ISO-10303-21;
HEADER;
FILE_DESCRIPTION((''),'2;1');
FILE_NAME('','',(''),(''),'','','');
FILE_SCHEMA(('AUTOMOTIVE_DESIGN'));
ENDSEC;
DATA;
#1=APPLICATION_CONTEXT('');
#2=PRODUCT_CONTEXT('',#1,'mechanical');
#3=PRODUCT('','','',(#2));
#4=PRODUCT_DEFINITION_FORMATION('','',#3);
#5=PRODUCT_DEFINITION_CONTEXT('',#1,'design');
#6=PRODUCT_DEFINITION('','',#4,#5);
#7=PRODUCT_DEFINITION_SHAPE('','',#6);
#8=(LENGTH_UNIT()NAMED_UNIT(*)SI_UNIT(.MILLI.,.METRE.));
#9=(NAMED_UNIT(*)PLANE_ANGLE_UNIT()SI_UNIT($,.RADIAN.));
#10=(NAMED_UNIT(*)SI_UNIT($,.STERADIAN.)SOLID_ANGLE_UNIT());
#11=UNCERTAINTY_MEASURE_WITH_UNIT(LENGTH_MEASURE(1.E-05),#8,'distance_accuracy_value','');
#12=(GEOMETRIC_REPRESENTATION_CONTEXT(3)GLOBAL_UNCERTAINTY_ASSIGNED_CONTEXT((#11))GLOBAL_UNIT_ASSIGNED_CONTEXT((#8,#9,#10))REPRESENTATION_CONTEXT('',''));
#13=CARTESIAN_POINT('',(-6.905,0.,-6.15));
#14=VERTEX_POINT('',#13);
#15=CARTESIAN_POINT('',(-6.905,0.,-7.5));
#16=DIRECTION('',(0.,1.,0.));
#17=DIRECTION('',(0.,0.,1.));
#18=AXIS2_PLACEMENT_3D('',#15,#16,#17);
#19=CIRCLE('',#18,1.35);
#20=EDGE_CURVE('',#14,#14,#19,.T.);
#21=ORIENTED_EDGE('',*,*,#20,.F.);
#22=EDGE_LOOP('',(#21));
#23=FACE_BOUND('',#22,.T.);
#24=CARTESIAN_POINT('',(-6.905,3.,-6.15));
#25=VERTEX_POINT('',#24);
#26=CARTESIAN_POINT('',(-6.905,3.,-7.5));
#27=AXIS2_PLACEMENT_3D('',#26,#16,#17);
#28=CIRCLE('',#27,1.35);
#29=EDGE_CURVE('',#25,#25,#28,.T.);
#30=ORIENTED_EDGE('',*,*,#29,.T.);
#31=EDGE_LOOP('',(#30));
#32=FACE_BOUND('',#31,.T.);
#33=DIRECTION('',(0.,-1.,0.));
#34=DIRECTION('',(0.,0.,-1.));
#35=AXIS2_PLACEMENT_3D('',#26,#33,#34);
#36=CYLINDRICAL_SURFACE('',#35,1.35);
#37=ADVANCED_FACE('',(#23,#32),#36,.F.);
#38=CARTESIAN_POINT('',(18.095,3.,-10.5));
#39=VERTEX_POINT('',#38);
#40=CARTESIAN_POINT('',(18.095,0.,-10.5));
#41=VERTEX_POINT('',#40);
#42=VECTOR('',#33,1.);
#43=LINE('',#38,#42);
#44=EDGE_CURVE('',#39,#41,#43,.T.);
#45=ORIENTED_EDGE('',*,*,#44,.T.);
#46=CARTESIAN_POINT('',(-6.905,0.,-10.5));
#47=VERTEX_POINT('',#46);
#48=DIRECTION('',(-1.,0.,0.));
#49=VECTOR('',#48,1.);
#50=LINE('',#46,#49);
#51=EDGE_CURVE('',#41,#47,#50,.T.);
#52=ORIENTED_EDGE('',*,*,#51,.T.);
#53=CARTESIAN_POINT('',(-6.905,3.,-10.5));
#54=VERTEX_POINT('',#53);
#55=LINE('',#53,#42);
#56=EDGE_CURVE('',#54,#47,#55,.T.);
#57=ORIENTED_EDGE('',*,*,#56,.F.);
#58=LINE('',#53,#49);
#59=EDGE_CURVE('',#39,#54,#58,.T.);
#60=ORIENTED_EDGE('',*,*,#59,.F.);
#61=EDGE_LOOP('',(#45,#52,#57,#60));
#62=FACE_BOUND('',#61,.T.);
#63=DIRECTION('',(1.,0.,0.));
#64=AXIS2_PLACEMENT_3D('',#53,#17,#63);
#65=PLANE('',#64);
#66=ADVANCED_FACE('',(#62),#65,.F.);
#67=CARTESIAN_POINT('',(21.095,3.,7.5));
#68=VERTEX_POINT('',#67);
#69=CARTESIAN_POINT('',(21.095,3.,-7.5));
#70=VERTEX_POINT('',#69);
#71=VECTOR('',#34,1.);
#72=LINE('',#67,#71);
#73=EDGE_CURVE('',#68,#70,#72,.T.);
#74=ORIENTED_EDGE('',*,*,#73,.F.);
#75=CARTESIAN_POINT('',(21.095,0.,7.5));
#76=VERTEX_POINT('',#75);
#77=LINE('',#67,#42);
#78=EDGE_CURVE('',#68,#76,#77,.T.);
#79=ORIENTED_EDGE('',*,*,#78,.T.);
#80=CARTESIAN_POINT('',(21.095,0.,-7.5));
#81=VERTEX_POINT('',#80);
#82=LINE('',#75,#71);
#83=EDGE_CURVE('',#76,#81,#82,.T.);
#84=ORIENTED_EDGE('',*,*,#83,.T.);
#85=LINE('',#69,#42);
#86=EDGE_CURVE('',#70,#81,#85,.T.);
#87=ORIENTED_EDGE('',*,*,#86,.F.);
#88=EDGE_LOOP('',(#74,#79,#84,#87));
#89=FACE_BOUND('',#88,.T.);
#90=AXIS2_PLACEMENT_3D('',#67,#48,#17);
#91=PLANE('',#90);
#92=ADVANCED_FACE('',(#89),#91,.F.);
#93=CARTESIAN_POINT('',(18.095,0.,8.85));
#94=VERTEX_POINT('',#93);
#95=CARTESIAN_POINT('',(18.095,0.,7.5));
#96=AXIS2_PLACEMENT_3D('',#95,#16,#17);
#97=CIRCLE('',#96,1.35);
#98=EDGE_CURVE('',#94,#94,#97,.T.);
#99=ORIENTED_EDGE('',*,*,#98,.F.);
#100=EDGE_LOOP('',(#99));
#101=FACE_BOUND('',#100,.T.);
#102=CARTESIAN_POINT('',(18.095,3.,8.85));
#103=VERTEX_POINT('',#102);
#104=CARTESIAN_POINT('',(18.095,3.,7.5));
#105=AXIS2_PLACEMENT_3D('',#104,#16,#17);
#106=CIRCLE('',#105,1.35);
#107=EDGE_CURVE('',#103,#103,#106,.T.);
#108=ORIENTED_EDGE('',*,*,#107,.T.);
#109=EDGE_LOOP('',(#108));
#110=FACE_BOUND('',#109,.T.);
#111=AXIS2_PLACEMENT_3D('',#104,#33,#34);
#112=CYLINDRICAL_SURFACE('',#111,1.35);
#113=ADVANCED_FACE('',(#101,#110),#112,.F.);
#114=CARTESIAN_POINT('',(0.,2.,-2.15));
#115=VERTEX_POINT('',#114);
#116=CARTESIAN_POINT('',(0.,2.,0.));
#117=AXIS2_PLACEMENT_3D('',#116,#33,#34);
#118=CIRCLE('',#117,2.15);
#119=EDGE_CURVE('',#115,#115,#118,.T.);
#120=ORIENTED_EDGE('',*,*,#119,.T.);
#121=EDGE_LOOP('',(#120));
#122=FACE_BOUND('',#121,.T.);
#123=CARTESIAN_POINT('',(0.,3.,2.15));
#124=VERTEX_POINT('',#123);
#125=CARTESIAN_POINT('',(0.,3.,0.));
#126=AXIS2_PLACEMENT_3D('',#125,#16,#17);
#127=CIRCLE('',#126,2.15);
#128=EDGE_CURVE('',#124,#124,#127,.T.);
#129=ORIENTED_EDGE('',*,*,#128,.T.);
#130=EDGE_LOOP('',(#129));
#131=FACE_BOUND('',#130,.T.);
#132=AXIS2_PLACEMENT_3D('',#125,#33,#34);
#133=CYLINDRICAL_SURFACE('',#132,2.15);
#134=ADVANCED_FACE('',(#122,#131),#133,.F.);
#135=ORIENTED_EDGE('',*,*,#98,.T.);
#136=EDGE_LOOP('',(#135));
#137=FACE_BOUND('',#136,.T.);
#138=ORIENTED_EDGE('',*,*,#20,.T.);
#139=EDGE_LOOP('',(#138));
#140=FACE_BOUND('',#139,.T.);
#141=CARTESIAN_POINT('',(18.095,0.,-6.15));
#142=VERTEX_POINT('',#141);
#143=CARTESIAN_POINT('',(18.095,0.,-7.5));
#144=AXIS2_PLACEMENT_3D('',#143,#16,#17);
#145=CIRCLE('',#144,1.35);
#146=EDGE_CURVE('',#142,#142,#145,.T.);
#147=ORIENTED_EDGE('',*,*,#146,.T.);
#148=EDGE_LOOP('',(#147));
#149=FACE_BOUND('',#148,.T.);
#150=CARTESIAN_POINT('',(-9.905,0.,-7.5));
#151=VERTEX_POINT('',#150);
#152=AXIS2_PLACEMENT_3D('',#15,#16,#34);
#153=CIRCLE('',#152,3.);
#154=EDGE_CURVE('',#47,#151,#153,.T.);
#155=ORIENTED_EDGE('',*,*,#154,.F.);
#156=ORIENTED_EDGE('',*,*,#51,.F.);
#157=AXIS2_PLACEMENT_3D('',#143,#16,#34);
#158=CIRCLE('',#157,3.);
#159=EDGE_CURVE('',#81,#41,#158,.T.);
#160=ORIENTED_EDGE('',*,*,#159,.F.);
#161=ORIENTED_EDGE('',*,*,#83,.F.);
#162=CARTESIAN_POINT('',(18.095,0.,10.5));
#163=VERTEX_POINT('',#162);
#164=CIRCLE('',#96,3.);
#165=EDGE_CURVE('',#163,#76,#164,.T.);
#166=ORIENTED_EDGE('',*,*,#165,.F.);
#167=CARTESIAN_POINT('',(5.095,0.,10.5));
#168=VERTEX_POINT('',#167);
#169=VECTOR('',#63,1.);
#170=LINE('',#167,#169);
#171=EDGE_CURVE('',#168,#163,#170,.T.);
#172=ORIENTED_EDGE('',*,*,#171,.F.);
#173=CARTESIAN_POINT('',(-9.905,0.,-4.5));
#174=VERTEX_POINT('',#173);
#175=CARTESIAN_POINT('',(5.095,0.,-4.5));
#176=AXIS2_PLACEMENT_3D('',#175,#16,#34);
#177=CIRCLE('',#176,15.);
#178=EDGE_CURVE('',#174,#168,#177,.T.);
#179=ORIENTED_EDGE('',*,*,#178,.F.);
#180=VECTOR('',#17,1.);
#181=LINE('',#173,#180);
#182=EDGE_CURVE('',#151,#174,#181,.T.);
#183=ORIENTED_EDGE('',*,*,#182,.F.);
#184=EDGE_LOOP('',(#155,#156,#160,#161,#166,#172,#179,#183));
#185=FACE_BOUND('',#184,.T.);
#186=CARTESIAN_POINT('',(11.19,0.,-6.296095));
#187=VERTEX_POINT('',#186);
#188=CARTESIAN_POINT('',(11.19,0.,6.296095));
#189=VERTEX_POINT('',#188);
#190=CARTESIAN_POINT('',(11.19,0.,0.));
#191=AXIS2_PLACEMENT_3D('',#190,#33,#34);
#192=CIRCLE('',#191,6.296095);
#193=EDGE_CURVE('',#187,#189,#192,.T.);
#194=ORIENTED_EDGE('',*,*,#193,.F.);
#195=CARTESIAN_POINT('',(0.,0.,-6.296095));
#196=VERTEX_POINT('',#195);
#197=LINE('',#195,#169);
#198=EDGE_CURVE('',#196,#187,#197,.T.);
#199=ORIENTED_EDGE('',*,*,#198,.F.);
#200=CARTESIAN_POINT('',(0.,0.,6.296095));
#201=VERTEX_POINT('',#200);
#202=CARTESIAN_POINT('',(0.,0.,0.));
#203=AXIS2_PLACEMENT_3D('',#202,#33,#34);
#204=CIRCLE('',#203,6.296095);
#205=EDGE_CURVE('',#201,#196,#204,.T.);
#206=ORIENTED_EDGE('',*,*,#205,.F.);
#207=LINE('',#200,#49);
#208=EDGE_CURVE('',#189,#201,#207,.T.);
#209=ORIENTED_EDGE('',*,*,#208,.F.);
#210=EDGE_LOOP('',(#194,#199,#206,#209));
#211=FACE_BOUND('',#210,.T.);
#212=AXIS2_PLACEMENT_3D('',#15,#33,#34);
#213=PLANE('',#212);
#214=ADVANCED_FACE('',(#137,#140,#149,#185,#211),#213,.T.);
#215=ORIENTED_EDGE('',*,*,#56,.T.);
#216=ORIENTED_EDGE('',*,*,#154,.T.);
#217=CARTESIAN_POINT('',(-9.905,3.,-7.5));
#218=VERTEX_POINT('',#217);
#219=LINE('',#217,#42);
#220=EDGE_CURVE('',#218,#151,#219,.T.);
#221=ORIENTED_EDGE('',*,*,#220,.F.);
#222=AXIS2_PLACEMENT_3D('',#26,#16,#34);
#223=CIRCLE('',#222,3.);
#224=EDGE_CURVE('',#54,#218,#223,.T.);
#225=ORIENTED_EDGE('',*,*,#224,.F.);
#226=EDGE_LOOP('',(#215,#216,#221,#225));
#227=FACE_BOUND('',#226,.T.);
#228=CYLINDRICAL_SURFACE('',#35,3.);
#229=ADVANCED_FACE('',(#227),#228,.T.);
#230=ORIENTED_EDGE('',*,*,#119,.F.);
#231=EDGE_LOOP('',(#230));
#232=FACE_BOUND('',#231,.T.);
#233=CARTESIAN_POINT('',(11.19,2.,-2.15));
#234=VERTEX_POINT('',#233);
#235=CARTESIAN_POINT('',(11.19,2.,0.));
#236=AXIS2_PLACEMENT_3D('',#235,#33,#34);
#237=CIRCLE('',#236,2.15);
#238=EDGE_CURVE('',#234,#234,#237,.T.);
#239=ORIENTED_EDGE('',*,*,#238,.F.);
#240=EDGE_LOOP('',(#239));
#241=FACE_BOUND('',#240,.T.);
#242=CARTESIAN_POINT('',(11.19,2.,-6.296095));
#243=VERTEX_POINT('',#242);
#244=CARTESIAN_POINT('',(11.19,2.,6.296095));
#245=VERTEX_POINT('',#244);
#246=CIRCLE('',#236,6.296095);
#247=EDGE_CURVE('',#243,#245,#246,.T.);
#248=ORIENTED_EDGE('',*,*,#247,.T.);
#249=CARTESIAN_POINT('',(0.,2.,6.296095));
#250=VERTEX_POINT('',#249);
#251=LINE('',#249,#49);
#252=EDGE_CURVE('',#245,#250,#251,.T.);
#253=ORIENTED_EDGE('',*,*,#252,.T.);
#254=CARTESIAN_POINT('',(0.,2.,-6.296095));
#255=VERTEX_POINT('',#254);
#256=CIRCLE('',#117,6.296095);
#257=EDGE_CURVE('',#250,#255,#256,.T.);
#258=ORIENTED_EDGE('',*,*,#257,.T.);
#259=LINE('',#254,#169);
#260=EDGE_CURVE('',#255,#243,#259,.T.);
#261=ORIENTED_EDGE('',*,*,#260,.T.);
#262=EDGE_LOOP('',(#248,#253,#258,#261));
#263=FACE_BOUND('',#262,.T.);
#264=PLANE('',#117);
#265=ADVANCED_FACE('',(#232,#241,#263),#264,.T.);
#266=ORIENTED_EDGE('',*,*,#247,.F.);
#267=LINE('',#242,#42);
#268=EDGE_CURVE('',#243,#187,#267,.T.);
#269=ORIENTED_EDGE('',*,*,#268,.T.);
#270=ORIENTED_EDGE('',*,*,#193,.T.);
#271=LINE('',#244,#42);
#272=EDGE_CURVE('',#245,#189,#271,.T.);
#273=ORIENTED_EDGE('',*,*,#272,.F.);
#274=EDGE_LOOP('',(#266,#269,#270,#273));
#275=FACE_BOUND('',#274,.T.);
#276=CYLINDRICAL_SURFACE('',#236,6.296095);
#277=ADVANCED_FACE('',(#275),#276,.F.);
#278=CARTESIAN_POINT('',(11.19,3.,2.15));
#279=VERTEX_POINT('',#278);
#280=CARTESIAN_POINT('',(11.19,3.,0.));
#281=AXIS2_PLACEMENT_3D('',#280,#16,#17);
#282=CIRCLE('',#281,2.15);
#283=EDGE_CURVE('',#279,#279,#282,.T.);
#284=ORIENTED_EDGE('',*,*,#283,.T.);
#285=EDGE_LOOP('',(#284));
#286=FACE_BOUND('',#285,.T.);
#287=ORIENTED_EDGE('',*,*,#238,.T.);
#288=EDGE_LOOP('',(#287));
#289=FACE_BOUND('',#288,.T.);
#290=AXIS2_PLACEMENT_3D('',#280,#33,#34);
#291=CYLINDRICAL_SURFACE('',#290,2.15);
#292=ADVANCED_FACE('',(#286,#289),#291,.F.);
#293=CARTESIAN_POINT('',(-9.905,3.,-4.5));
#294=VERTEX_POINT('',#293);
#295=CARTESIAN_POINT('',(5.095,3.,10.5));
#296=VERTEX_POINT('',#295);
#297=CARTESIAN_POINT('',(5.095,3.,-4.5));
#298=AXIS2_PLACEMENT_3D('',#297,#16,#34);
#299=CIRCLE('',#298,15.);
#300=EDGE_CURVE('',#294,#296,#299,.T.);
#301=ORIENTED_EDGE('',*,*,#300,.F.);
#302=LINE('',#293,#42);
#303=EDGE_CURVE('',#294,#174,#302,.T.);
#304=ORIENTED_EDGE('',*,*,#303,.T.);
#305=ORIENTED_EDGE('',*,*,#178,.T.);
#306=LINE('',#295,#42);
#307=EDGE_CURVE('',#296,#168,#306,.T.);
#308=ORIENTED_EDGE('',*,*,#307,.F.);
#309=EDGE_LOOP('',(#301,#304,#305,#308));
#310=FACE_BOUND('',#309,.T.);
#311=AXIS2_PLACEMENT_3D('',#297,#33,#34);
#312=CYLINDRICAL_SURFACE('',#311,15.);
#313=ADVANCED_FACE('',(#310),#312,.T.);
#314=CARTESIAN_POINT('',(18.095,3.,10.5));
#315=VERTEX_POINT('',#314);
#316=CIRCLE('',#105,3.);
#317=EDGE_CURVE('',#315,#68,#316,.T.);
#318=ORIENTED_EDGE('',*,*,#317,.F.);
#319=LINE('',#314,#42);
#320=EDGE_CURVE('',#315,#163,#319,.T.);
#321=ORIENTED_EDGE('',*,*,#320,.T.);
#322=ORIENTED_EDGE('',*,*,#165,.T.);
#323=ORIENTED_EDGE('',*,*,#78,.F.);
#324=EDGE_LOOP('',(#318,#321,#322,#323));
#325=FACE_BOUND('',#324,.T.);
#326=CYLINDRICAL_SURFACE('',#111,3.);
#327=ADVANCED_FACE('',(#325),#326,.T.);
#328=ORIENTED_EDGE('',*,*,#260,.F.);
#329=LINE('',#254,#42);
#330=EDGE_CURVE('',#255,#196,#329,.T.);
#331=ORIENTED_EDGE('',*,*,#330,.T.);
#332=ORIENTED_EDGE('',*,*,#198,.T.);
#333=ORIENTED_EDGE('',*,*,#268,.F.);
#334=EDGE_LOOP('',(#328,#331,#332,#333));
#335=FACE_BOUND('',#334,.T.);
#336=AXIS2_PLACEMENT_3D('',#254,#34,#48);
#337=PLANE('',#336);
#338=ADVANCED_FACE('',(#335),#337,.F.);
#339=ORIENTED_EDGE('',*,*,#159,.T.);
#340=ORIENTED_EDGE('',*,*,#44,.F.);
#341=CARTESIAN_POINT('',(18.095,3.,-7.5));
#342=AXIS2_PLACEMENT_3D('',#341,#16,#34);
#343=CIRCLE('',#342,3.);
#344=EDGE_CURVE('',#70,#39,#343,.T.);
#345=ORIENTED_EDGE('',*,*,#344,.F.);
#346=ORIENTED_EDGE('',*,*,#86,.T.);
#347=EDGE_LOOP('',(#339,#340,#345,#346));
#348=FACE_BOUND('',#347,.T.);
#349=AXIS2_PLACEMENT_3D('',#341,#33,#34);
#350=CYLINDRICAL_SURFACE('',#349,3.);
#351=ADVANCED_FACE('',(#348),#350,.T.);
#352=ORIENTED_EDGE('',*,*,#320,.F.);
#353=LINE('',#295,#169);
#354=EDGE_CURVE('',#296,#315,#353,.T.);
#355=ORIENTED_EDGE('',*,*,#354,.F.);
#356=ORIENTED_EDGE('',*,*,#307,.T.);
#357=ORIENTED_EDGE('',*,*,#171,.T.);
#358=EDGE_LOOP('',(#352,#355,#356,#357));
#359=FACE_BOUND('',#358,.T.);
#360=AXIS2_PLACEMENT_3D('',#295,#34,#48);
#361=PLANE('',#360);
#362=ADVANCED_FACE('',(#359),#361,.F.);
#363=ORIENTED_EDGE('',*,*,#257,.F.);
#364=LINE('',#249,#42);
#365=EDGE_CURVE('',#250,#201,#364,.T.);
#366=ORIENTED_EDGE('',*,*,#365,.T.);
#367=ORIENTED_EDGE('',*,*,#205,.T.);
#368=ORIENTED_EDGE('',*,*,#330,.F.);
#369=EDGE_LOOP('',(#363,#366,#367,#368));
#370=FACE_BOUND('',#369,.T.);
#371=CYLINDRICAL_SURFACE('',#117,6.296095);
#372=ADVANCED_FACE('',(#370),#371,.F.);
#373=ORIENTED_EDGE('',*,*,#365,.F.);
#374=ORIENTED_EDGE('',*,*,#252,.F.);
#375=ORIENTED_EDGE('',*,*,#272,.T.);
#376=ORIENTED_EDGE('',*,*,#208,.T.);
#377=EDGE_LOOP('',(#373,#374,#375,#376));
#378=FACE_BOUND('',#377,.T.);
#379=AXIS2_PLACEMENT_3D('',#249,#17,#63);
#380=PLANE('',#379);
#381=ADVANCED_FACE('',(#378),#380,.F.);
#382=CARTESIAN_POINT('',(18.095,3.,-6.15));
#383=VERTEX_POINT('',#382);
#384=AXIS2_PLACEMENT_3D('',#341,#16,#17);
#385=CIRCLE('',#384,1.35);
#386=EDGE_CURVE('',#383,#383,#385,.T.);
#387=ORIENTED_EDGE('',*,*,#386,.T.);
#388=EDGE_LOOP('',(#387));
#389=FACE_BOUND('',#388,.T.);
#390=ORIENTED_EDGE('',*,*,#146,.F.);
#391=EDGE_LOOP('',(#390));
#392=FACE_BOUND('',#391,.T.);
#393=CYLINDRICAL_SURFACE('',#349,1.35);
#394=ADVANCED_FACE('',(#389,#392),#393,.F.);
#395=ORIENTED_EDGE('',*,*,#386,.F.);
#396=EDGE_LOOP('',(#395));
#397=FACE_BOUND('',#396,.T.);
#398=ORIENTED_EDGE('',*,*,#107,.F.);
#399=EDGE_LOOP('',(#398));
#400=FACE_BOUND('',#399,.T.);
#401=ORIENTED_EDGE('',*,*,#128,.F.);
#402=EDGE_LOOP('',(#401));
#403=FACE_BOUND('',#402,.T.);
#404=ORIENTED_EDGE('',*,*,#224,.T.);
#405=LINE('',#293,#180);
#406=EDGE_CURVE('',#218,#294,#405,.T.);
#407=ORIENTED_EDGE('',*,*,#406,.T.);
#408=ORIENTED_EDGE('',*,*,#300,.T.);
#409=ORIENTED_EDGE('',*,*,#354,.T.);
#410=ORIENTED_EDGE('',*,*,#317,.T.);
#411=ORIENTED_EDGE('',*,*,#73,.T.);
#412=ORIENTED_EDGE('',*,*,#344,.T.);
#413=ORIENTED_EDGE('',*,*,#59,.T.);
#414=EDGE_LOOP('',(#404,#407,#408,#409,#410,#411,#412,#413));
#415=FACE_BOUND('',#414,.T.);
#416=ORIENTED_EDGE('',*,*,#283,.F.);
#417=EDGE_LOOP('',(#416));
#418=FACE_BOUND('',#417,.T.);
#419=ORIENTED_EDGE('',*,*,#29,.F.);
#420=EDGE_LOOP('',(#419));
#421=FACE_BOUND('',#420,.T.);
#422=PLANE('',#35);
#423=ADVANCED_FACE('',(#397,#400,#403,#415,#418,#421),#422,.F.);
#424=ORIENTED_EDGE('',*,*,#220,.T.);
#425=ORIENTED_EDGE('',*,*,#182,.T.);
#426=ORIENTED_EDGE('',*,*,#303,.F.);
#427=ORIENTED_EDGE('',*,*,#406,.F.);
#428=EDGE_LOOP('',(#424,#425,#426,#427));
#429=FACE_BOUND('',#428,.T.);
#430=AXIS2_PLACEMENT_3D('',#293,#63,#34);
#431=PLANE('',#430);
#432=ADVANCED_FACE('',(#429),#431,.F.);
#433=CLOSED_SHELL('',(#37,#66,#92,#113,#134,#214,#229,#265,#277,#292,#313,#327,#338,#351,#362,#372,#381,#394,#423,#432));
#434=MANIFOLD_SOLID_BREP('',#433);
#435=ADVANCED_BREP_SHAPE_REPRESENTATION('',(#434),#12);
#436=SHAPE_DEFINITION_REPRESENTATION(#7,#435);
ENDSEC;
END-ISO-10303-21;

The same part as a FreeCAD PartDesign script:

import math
import FreeCAD as App
import Part
import Sketcher

V = App.Vector

doc = App.newDocument("Part")
body = doc.addObject("PartDesign::Body", "Body")

# Sketch on XZ plane
sketch1 = body.newObject("Sketcher::SketchObject", "Sketch")
sketch1.AttachmentSupport = (doc.getObject("XZ_Plane"), [""])
sketch1.MapMode = "FlatFace"
sketch1.addGeometry(Part.LineSegment(V(5.1, 10.5, 0), V(18.1, 10.5, 0)), False)
sketch1.addGeometry(Part.ArcOfCircle(Part.Circle(V(18.1, 7.5, 0), V(0, 0, 1), 3), math.radians(0), math.radians(90)), False)
sketch1.addGeometry(Part.LineSegment(V(21.1, 7.5, 0), V(21.1, -7.5, 0)), False)
sketch1.addGeometry(Part.ArcOfCircle(Part.Circle(V(18.1, -7.5, 0), V(0, 0, 1), 3), math.radians(-90), math.radians(0)), False)
sketch1.addGeometry(Part.LineSegment(V(18.1, -10.5, 0), V(-6.9, -10.5, 0)), False)
sketch1.addGeometry(Part.ArcOfCircle(Part.Circle(V(-6.9, -7.5, 0), V(0, 0, 1), 3), math.radians(180), math.radians(270)), False)
sketch1.addGeometry(Part.LineSegment(V(-9.9, -7.5, 0), V(-9.9, -4.5, 0)), False)
sketch1.addGeometry(Part.ArcOfCircle(Part.Circle(V(5.1, -4.5, 0), V(0, 0, 1), 15), math.radians(90), math.radians(180)), False)
sketch1.addGeometry(Part.Circle(V(18.1, 7.5, 0), V(0, 0, 1), 1.4), False)
sketch1.addGeometry(Part.Circle(V(0, 0, 0), V(0, 0, 1), 2.1), False)
sketch1.addGeometry(Part.Circle(V(-6.9, -7.5, 0), V(0, 0, 1), 1.4), False)
sketch1.addGeometry(Part.Circle(V(11.2, 0, 0), V(0, 0, 1), 2.1), False)
sketch1.addGeometry(Part.Circle(V(18.1, -7.5, 0), V(0, 0, 1), 1.4), False)
sketch1.addConstraint(Sketcher.Constraint("Tangent", 0, 2, 1, 2))
sketch1.addConstraint(Sketcher.Constraint("Tangent", 1, 1, 2, 1))
sketch1.addConstraint(Sketcher.Constraint("Tangent", 2, 2, 3, 2))
sketch1.addConstraint(Sketcher.Constraint("Tangent", 3, 1, 4, 1))
sketch1.addConstraint(Sketcher.Constraint("Tangent", 4, 2, 5, 2))
sketch1.addConstraint(Sketcher.Constraint("Tangent", 5, 1, 6, 1))
sketch1.addConstraint(Sketcher.Constraint("Tangent", 6, 2, 7, 2))
sketch1.addConstraint(Sketcher.Constraint("Tangent", 7, 1, 0, 1))
sketch1.addConstraint(Sketcher.Constraint("Horizontal", 0))
sketch1.addConstraint(Sketcher.Constraint("Vertical", 2))
sketch1.addConstraint(Sketcher.Constraint("Horizontal", 4))
sketch1.addConstraint(Sketcher.Constraint("Vertical", 6))
sketch1.addConstraint(Sketcher.Constraint("Coincident", 9, 3, -1, 1))
sketch1.addConstraint(Sketcher.Constraint("Coincident", 8, 3, 1, 3))
sketch1.addConstraint(Sketcher.Constraint("Coincident", 10, 3, 5, 3))
sketch1.addConstraint(Sketcher.Constraint("Coincident", 12, 3, 3, 3))
sketch1.addConstraint(Sketcher.Constraint("Equal", 1, 3))
sketch1.addConstraint(Sketcher.Constraint("Equal", 3, 5))
sketch1.addConstraint(Sketcher.Constraint("Equal", 8, 10))
sketch1.addConstraint(Sketcher.Constraint("Equal", 9, 11))
sketch1.addConstraint(Sketcher.Constraint("Equal", 10, 12))
sketch1.addConstraint(Sketcher.Constraint("PointOnObject", 11, 3, -1))
sketch1.addConstraint(Sketcher.Constraint("Radius", 1, 3.0))
sketch1.addConstraint(Sketcher.Constraint("Radius", 7, 15.0))
sketch1.addConstraint(Sketcher.Constraint("Diameter", 8, 2.7))
sketch1.addConstraint(Sketcher.Constraint("Diameter", 9, 4.3))
sketch1.addConstraint(Sketcher.Constraint("DistanceX", 0, 1, 0, 2, 13.0))
sketch1.addConstraint(Sketcher.Constraint("DistanceY", 2, 2, 2, 1, 15.0))
sketch1.addConstraint(Sketcher.Constraint("DistanceY", -1, 1, 1, 3, 7.5))
sketch1.addConstraint(Sketcher.Constraint("DistanceX", -1, 1, 11, 3, 11.19))
sketch1.addConstraint(Sketcher.Constraint("DistanceX", -1, 1, 1, 3, 18.095))
pad1 = body.newObject("PartDesign::Pad", "Pad")
pad1.Profile = sketch1
pad1.Length = 3
pad1.Reversed = True

# Sketch on XZ plane
sketch2 = body.newObject("Sketcher::SketchObject", "Sketch001")
sketch2.AttachmentSupport = (doc.getObject("XZ_Plane"), [""])
sketch2.MapMode = "FlatFace"
sketch2.addGeometry(Part.LineSegment(V(11, 6, 0), V(0, 6, 0)), False)
sketch2.addGeometry(Part.ArcOfCircle(Part.Circle(V(0, 0, 0), V(0, 0, 1), 6), math.radians(90), math.radians(270)), False)
sketch2.addGeometry(Part.LineSegment(V(0, -6, 0), V(11, -6, 0)), False)
sketch2.addGeometry(Part.ArcOfCircle(Part.Circle(V(11, 0, 0), V(0, 0, 1), 6), math.radians(-90), math.radians(90)), False)
sketch2.addConstraint(Sketcher.Constraint("Tangent", 0, 2, 1, 1))
sketch2.addConstraint(Sketcher.Constraint("Tangent", 1, 2, 2, 1))
sketch2.addConstraint(Sketcher.Constraint("Tangent", 2, 2, 3, 1))
sketch2.addConstraint(Sketcher.Constraint("Tangent", 3, 2, 0, 1))
sketch2.addConstraint(Sketcher.Constraint("Horizontal", 0))
sketch2.addConstraint(Sketcher.Constraint("Horizontal", 2))
sketch2.addConstraint(Sketcher.Constraint("Coincident", 1, 3, -1, 1))
sketch2.addConstraint(Sketcher.Constraint("DistanceX", 0, 2, 0, 1, 11.19))
sketch2.addConstraint(Sketcher.Constraint("Radius", 1, 6.296095))
pocket1 = body.newObject("PartDesign::Pocket", "Pocket")
pocket1.Profile = sketch2
pocket1.Length = 2

doc.recompute()
